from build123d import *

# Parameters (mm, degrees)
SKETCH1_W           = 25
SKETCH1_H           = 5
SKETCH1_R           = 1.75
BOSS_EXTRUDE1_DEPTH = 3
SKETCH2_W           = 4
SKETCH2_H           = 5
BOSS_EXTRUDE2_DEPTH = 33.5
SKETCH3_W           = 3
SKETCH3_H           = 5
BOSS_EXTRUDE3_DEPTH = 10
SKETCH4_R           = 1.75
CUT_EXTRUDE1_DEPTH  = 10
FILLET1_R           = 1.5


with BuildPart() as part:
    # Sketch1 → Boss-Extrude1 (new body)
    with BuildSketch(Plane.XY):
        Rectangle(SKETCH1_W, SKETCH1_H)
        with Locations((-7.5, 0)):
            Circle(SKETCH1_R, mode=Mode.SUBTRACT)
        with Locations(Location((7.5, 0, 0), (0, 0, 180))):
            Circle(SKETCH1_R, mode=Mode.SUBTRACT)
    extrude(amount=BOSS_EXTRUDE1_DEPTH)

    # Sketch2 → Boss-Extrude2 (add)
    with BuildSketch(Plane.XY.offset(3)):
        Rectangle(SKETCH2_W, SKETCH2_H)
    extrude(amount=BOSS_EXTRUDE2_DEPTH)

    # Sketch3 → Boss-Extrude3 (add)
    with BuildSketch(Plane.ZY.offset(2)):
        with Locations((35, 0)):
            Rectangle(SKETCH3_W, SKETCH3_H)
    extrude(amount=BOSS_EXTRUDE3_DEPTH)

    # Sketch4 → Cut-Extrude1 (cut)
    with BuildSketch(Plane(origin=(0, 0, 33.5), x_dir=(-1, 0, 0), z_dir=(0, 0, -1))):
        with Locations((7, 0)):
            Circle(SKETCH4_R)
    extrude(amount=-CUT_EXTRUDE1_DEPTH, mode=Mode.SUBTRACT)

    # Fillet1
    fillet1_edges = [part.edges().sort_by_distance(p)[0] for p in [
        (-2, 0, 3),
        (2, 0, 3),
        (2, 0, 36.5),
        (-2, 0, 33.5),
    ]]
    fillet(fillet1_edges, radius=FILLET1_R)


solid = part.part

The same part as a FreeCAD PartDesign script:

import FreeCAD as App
import Part
import Sketcher


def edges_at(feature, points):
    """Names of the edges that pass closest to the given points."""
    edges = feature.Shape.Edges
    near = lambda p: min(range(len(edges)), key=lambda i: edges[i].distToShape(Part.Vertex(*p))[0])
    return sorted({f"Edge{near(p) + 1}" for p in points})


def add_polygon(sketch, points):
    """Adds a closed chain of lines whose ends are joined by coincident constraints."""
    first, n = sketch.GeometryCount, len(points)
    for a, b in zip(points, points[1:] + points[:1]):
        sketch.addGeometry(Part.LineSegment(App.Vector(*a, 0), App.Vector(*b, 0)), False)
    for i in range(n):
        sketch.addConstraint(Sketcher.Constraint("Coincident", first + i, 2, first + (i + 1) % n, 1))

doc = App.newDocument("Part")
body = doc.addObject("PartDesign::Body", "Body")

# Sketch on XY plane
sketch1 = body.newObject("Sketcher::SketchObject", "Sketch")
sketch1.AttachmentSupport = (doc.getObject("XY_Plane"), [""])
sketch1.MapMode = "FlatFace"
add_polygon(sketch1, [(-12.5, 2.5), (-12.5, -2.5), (12.5, -2.5), (12.5, 2.5)])  # lines 0-3
sketch1.addGeometry(Part.Circle(App.Vector(-7.5, 0, 0), App.Vector(0, 0, 1), 1.8), False)  # 4
sketch1.addGeometry(Part.Circle(App.Vector(7.5, 0, 0), App.Vector(0, 0, 1), 1.8), False)  # 5
sketch1.addConstraint([
    Sketcher.Constraint("Vertical", 0),
    Sketcher.Constraint("Horizontal", 1),
    Sketcher.Constraint("Vertical", 2),
    Sketcher.Constraint("Horizontal", 3),
    Sketcher.Constraint("Equal", 4, 5),
    Sketcher.Constraint("Symmetric", 4, 3, 5, 3, -1, 1),
    Sketcher.Constraint("Symmetric", 0, 2, 2, 2, -1, 1),
    Sketcher.Constraint("PointOnObject", 4, 3, -1),
    Sketcher.Constraint("Diameter", 4, 3.5),
    Sketcher.Constraint("DistanceX", 1, 1, 1, 2, 25.0),
    Sketcher.Constraint("DistanceY", 0, 2, 0, 1, 5.0),
    Sketcher.Constraint("DistanceX", 4, 3, 5, 3, 15.0),
])
pad1 = body.newObject("PartDesign::Pad", "Pad")
pad1.Profile = sketch1
pad1.Length = 3

# Sketch on XY plane
sketch2 = body.newObject("Sketcher::SketchObject", "Sketch001")
sketch2.AttachmentSupport = (doc.getObject("XY_Plane"), [""])
sketch2.MapMode = "FlatFace"
sketch2.AttachmentOffset = App.Placement(App.Vector(0, 0, 3), App.Rotation())
add_polygon(sketch2, [(-2, 2.5), (-2, -2.5), (2, -2.5), (2, 2.5)])  # lines 0-3
sketch2.addConstraint([
    Sketcher.Constraint("Vertical", 0),
    Sketcher.Constraint("Horizontal", 1),
    Sketcher.Constraint("Vertical", 2),
    Sketcher.Constraint("Horizontal", 3),
    Sketcher.Constraint("Symmetric", 0, 2, 2, 2, -1, 1),
    Sketcher.Constraint("DistanceX", 1, 1, 1, 2, 4.0),
    Sketcher.Constraint("DistanceY", 0, 2, 0, 1, 5.0),
])
pad2 = body.newObject("PartDesign::Pad", "Pad001")
pad2.Profile = sketch2
pad2.Length = 33.5

# Sketch on YZ plane
sketch3 = body.newObject("Sketcher::SketchObject", "Sketch002")
sketch3.AttachmentSupport = (doc.getObject("YZ_Plane"), [""])
sketch3.MapMode = "FlatFace"
sketch3.AttachmentOffset = App.Placement(App.Vector(0, 0, -2), App.Rotation())
add_polygon(sketch3, [(2.5, 33.5), (-2.5, 33.5), (-2.5, 36.5), (2.5, 36.5)])  # lines 0-3
sketch3.addConstraint([
    Sketcher.Constraint("Horizontal", 0),
    Sketcher.Constraint("Vertical", 1),
    Sketcher.Constraint("Horizontal", 2),
    Sketcher.Constraint("Vertical", 3),
    Sketcher.Constraint("DistanceX", 0, 2, 0, 1, 5.0),
    Sketcher.Constraint("DistanceY", 1, 1, 1, 2, 3.0),
    Sketcher.Constraint("DistanceX", 0, 2, -1, 1, 2.5),
    Sketcher.Constraint("DistanceY", -1, 1, 0, 2, 33.5),
])
pad3 = body.newObject("PartDesign::Pad", "Pad002")
pad3.Profile = sketch3
pad3.Length = 10
pad3.Reversed = True

# Sketch on XY plane
sketch4 = body.newObject("Sketcher::SketchObject", "Sketch003")
sketch4.AttachmentSupport = (doc.getObject("XY_Plane"), [""])
sketch4.MapMode = "FlatFace"
sketch4.AttachmentOffset = App.Placement(App.Vector(0, 0, 33.5), App.Rotation())
sketch4.addGeometry(Part.Circle(App.Vector(-7, 0, 0), App.Vector(0, 0, 1), 1.8), False)
sketch4.addConstraint([
    Sketcher.Constraint("PointOnObject", 0, 3, -1),
    Sketcher.Constraint("Diameter", 0, 3.5),
    Sketcher.Constraint("DistanceX", 0, 3, -1, 1, 7.0),
])
pocket1 = body.newObject("PartDesign::Pocket", "Pocket")
pocket1.Profile = sketch4
pocket1.Length = 10
pocket1.Reversed = True
doc.recompute()

fillet = body.newObject("PartDesign::Fillet", "Fillet")
fillet.Base = (pocket1, edges_at(pocket1, [
    (-2, 0, 3),
    (2, 0, 3),
    (2, 0, 36.5),
    (-2, 0, 33.5),
]))
fillet.Radius = 1.5

doc.recompute()
